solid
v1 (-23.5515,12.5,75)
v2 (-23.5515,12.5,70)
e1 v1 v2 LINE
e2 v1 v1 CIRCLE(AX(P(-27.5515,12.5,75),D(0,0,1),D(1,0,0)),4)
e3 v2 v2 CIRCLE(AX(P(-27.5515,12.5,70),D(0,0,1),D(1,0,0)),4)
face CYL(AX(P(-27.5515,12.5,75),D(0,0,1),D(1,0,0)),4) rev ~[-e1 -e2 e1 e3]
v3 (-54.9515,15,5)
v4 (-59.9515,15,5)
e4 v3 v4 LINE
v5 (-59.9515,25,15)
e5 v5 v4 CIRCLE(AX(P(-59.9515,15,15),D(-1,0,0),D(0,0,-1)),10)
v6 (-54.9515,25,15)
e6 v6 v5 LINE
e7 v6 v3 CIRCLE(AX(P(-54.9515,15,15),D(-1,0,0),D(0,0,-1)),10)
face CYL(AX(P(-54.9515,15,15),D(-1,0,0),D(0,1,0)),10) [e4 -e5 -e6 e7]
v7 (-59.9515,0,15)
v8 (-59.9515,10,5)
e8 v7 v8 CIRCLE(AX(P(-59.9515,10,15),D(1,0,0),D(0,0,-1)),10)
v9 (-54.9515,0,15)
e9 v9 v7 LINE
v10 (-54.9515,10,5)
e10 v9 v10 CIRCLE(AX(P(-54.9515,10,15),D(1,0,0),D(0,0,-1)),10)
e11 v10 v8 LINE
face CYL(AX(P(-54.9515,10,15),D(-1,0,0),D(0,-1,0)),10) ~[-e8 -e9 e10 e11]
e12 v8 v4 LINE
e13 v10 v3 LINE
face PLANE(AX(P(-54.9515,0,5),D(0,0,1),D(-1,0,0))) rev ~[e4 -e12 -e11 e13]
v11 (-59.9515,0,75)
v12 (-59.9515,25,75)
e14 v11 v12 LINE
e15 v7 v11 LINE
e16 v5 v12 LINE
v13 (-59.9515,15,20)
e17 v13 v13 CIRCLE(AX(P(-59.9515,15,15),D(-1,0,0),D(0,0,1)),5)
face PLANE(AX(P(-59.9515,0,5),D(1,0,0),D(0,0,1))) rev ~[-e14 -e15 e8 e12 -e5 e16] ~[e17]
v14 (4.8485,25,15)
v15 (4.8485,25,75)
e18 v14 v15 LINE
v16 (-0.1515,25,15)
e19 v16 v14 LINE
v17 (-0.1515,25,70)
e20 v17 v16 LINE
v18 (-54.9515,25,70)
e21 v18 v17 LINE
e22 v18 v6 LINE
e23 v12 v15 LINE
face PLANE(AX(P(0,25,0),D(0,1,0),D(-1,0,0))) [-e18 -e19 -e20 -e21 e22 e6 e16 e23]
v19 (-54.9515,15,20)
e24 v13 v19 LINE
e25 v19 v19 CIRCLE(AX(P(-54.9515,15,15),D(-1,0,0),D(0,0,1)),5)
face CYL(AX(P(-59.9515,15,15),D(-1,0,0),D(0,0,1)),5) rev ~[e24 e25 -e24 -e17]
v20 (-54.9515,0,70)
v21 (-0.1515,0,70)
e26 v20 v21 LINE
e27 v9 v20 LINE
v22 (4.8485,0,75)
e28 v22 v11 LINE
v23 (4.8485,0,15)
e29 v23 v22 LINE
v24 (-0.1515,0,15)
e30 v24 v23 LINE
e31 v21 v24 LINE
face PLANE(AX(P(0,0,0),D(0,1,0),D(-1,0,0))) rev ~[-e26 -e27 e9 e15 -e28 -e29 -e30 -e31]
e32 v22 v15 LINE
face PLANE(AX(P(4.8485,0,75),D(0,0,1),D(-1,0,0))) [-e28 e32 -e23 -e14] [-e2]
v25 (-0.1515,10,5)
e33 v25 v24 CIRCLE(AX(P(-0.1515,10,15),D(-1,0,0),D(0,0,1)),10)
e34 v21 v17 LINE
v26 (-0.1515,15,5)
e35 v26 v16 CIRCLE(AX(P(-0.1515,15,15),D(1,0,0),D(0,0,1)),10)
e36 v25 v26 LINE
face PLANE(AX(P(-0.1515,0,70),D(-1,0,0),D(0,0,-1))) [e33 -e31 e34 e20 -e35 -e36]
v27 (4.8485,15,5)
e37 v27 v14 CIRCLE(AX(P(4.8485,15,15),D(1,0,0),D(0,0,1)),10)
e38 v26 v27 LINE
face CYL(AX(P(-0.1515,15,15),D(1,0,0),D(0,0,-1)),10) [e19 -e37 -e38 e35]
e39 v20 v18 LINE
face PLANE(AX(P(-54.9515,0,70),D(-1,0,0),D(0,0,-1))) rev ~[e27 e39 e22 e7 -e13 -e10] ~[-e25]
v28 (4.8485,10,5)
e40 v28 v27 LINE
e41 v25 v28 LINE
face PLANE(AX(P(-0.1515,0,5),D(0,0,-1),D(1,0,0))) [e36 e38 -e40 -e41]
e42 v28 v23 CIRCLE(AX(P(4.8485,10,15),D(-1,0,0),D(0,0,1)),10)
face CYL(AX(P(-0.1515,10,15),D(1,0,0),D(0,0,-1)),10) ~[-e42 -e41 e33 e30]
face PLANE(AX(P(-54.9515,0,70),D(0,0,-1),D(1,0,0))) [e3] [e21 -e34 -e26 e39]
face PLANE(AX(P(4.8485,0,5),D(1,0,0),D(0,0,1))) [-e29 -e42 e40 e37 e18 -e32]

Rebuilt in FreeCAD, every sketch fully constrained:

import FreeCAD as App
import Part
import Sketcher
from FreeCAD import Vector
Q = App.Units.Quantity


def edges_at(feature, points):
    """Names of the edges that pass closest to the given points."""
    edges = feature.Shape.Edges
    near = lambda p: min(range(len(edges)), key=lambda i: edges[i].distToShape(Part.Vertex(*p))[0])
    return sorted({f"Edge{near(p) + 1}" for p in points})

doc = App.newDocument("Part")
params = doc.addObject("Spreadsheet::Sheet", "Params")
for row, (alias, value) in enumerate([
    ("sketch1_width", "5 mm"),
    ("sketch1_height", "70 mm"),
    ("sketch1_width2", "54.8 mm"),
    ("pad1_length", "25 mm"),
    ("fillet_radius", "10 mm"),
    ("sketch2_diameter", "10 mm"),
    ("pocket1_length", "5 mm"),
    ("sketch3_diameter", "8 mm"),
    ("pocket2_length", "5 mm"),
], start=1):
    params.set(f"A{row}", alias)
    params.set(f"B{row}", "=" + value)
    params.setAlias(f"B{row}", alias)

body = doc.addObject("PartDesign::Body", "Body")

# Sketch on XZ plane
sketch1 = doc.addObject("Sketcher::SketchObject", "Sketch")
body.addObject(sketch1)
sketch1.AttachmentSupport = (doc.XZ_Plane, [""])
sketch1.MapMode = "FlatFace"
sketch1.addGeometry([
    Part.LineSegment(Vector(4.8485, 5, 0), Vector(-0.1515, 5, 0)),  # 0
    Part.LineSegment(Vector(-0.1515, 5, 0), Vector(-0.1515, 70, 0)),  # 1
    Part.LineSegment(Vector(-0.1515, 70, 0), Vector(-54.9515, 70, 0)),  # 2
    Part.LineSegment(Vector(-54.9515, 70, 0), Vector(-54.9515, 5, 0)),  # 3
    Part.LineSegment(Vector(-54.9515, 5, 0), Vector(-59.9515, 5, 0)),  # 4
    Part.LineSegment(Vector(-59.9515, 5, 0), Vector(-59.9515, 75, 0)),  # 5
    Part.LineSegment(Vector(-59.9515, 75, 0), Vector(4.8485, 75, 0)),  # 6
    Part.LineSegment(Vector(4.8485, 75, 0), Vector(4.8485, 5, 0)),  # 7
], False)
sketch1.addConstraint([
    Sketcher.Constraint("Coincident", 0, 2, 1, 1),
    Sketcher.Constraint("Coincident", 1, 2, 2, 1),
    Sketcher.Constraint("Coincident", 2, 2, 3, 1),
    Sketcher.Constraint("Coincident", 3, 2, 4, 1),
    Sketcher.Constraint("Coincident", 4, 2, 5, 1),
    Sketcher.Constraint("Coincident", 5, 2, 6, 1),
    Sketcher.Constraint("Coincident", 6, 2, 7, 1),
    Sketcher.Constraint("Coincident", 7, 2, 0, 1),
    Sketcher.Constraint("Horizontal", 0),
    Sketcher.Constraint("Vertical", 1),
    Sketcher.Constraint("Horizontal", 2),
    Sketcher.Constraint("Vertical", 3),
    Sketcher.Constraint("Horizontal", 4),
    Sketcher.Constraint("Vertical", 5),
    Sketcher.Constraint("Horizontal", 6),
    Sketcher.Constraint("Vertical", 7),
    Sketcher.Constraint("Horizontal", 0, 2, 3, 2),
    Sketcher.Constraint("Equal", 0, 4),
    Sketcher.Constraint("DistanceX", 0, 2, 0, 1, Q("5 mm")),
    Sketcher.Constraint("DistanceY", 5, 1, 5, 2, Q("70 mm")),
    Sketcher.Constraint("DistanceX", 2, 2, 2, 1, Q("54.8 mm")),
    Sketcher.Constraint("DistanceY", -1, 1, 0, 2, Q("5 mm")),
    Sketcher.Constraint("DistanceY", -1, 1, 1, 2, Q("70 mm")),
    Sketcher.Constraint("DistanceX", 0, 2, -1, 1, Q("0.1515 mm")),
])
sketch1.setExpression("Constraints[18]", "Params.sketch1_width")
sketch1.setExpression("Constraints[19]", "Params.sketch1_height")
sketch1.setExpression("Constraints[20]", "Params.sketch1_width2")
pad1 = doc.addObject("PartDesign::Pad", "Pad")
body.addObject(pad1)
pad1.Profile = sketch1
pad1.setExpression("Length", "Params.pad1_length")
pad1.Reversed = True
doc.recompute()

fillet = doc.addObject("PartDesign::Fillet", "Fillet")
body.addObject(fillet)
fillet.Base = (pad1, edges_at(pad1, [
    (2.349, 25, 5),
    (-57.452, 25, 5),
    (2.349, 0, 5),
    (-57.452, 0, 5),
]))
fillet.setExpression("Radius", "Params.fillet_radius")

# Sketch on YZ plane
sketch2 = doc.addObject("Sketcher::SketchObject", "Sketch001")
body.addObject(sketch2)
sketch2.AttachmentSupport = (doc.YZ_Plane, [""])
sketch2.MapMode = "FlatFace"
sketch2.AttachmentOffset = App.Placement(Vector(0, 0, -59.9515), App.Rotation())
sketch2.addGeometry(Part.Circle(Vector(15, 15, 0), Vector(0, 0, 1), 5), False)
sketch2.addConstraint([
    Sketcher.Constraint("Diameter", 0, Q("10 mm")),
    Sketcher.Constraint("DistanceX", -1, 1, 0, 3, Q("15 mm")),
    Sketcher.Constraint("DistanceY", -1, 1, 0, 3, Q("15 mm")),
])
sketch2.setExpression("Constraints[0]", "Params.sketch2_diameter")
pocket1 = doc.addObject("PartDesign::Pocket", "Pocket")
body.addObject(pocket1)
pocket1.Profile = sketch2
pocket1.setExpression("Length", "Params.pocket1_length")
pocket1.Reversed = True

# Sketch on XY plane
sketch3 = doc.addObject("Sketcher::SketchObject", "Sketch002")
body.addObject(sketch3)
sketch3.AttachmentSupport = (doc.XY_Plane, [""])
sketch3.MapMode = "FlatFace"
sketch3.AttachmentOffset = App.Placement(Vector(0, 0, 75), App.Rotation())
sketch3.addGeometry(Part.Circle(Vector(-27.5515, 12.5, 0), Vector(0, 0, 1), 4), False)
sketch3.addConstraint([
    Sketcher.Constraint("Diameter", 0, Q("8 mm")),
    Sketcher.Constraint("DistanceY", -1, 1, 0, 3, Q("12.5 mm")),
    Sketcher.Constraint("DistanceX", 0, 3, -1, 1, Q("27.5515 mm")),
])
sketch3.setExpression("Constraints[0]", "Params.sketch3_diameter")
pocket2 = doc.addObject("PartDesign::Pocket", "Pocket001")
body.addObject(pocket2)
pocket2.Profile = sketch3
pocket2.setExpression("Length", "Params.pocket2_length")

doc.recompute()
